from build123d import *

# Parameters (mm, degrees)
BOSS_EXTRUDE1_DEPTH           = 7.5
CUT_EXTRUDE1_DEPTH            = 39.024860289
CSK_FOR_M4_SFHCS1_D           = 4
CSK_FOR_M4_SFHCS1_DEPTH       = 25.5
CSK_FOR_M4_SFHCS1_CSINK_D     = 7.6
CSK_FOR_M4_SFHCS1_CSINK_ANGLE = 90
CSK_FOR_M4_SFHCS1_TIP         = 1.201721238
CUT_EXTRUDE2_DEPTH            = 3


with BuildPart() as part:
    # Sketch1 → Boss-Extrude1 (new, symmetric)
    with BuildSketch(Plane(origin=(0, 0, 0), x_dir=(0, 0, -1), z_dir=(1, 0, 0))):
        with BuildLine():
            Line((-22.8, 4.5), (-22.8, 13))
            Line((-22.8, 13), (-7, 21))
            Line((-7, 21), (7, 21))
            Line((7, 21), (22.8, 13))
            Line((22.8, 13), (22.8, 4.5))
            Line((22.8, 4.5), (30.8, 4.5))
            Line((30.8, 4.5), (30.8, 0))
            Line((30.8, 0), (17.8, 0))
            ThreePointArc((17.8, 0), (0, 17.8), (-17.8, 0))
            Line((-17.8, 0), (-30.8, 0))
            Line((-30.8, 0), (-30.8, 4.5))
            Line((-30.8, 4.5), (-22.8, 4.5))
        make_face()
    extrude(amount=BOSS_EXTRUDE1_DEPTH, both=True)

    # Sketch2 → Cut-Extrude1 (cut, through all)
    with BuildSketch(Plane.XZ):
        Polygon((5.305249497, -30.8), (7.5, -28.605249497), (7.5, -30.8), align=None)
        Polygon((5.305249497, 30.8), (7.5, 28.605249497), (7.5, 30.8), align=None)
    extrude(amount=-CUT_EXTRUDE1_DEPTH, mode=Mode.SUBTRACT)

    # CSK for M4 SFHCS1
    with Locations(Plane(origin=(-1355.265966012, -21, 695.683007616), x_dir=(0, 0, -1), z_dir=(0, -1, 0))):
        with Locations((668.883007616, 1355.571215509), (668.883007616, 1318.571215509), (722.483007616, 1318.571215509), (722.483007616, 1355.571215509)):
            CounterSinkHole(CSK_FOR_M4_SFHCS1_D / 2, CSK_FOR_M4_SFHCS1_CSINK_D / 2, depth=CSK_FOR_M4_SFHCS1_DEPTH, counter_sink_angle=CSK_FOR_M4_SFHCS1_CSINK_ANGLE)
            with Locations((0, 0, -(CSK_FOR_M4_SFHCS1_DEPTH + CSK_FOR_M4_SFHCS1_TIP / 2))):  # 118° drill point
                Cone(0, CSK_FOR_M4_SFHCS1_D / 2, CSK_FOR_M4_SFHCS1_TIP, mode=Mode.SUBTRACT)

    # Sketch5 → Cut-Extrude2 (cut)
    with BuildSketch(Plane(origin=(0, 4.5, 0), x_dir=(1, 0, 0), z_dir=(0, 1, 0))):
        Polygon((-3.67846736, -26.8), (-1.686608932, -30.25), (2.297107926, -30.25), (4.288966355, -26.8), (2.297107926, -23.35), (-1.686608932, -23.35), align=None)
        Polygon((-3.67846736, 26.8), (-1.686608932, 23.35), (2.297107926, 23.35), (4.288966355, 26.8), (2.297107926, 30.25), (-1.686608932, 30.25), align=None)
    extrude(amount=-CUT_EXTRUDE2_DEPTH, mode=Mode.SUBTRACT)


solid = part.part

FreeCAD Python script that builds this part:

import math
import FreeCAD as App
import Part
import Sketcher

V = App.Vector
Q = App.Units.Quantity

doc = App.newDocument("Part")
body = doc.addObject("PartDesign::Body", "Body")

# Sketch on YZ plane
sketch1 = body.newObject("Sketcher::SketchObject", "Sketch")
sketch1.AttachmentSupport = (doc.getObject("YZ_Plane"), [""])
sketch1.MapMode = "FlatFace"
sketch1.addGeometry([
    Part.LineSegment(V(13, 22.8, 0), V(4.5, 22.8, 0)),  # 0
    Part.LineSegment(V(4.5, 22.8, 0), V(4.5, 30.8, 0)),  # 1
    Part.LineSegment(V(4.5, 30.8, 0), V(0, 30.8, 0)),  # 2
    Part.LineSegment(V(0, 30.8, 0), V(0, 17.8, 0)),  # 3
    Part.ArcOfCircle(Part.Circle(V(0, 0, 0), V(0, 0, 1), 17.8), math.radians(-90), math.radians(90)),  # 4
    Part.LineSegment(V(0, -17.8, 0), V(0, -30.8, 0)),  # 5
    Part.LineSegment(V(0, -30.8, 0), V(4.5, -30.8, 0)),  # 6
    Part.LineSegment(V(4.5, -30.8, 0), V(4.5, -22.8, 0)),  # 7
    Part.LineSegment(V(4.5, -22.8, 0), V(13, -22.8, 0)),  # 8
    Part.LineSegment(V(13, -22.8, 0), V(21, -7, 0)),  # 9
    Part.LineSegment(V(21, -7, 0), V(21, 7, 0)),  # 10
    Part.LineSegment(V(21, 7, 0), V(13, 22.8, 0)),  # 11
], False)
sketch1.addConstraint([
    Sketcher.Constraint("Coincident", 0, 2, 1, 1),
    Sketcher.Constraint("Coincident", 1, 2, 2, 1),
    Sketcher.Constraint("Coincident", 2, 2, 3, 1),
    Sketcher.Constraint("Coincident", 3, 2, 4, 2),
    Sketcher.Constraint("Coincident", 4, 1, 5, 1),
    Sketcher.Constraint("Coincident", 5, 2, 6, 1),
    Sketcher.Constraint("Coincident", 6, 2, 7, 1),
    Sketcher.Constraint("Coincident", 7, 2, 8, 1),
    Sketcher.Constraint("Coincident", 8, 2, 9, 1),
    Sketcher.Constraint("Coincident", 9, 2, 10, 1),
    Sketcher.Constraint("Coincident", 10, 2, 11, 1),
    Sketcher.Constraint("Coincident", 11, 2, 0, 1),
    Sketcher.Constraint("Horizontal", 0),
    Sketcher.Constraint("Vertical", 1),
    Sketcher.Constraint("Horizontal", 2),
    Sketcher.Constraint("Vertical", 3),
    Sketcher.Constraint("Vertical", 5),
    Sketcher.Constraint("Horizontal", 6),
    Sketcher.Constraint("Vertical", 7),
    Sketcher.Constraint("Horizontal", 8),
    Sketcher.Constraint("Vertical", 10),
    Sketcher.Constraint("Coincident", 4, 3, -1, 1),
    Sketcher.Constraint("Symmetric", 2, 2, 5, 2, -1, 1),
    Sketcher.Constraint("Symmetric", 0, 2, 7, 2, -1),
    Sketcher.Constraint("PointOnObject", 2, 2, -2),
    Sketcher.Constraint("Vertical", 8, 2, 11, 2),
    Sketcher.Constraint("Equal", 9, 11),
    Sketcher.Constraint("Radius", 4, Q("17.8 mm")),
    Sketcher.Constraint("DistanceY", 1, 1, 1, 2, Q("8 mm")),
    Sketcher.Constraint("DistanceY", 3, 2, 3, 1, Q("13 mm")),
    Sketcher.Constraint("DistanceY", 10, 1, 10, 2, Q("14 mm")),
    Sketcher.Constraint("DistanceX", 0, 2, 0, 1, Q("8.5 mm")),
    Sketcher.Constraint("DistanceX", 2, 2, 2, 1, Q("4.5 mm")),
    Sketcher.Constraint("DistanceX", -1, 1, 9, 2, Q("21 mm")),
])
pad1 = body.newObject("PartDesign::Pad", "Pad")
pad1.Profile = sketch1
pad1.Length = 15
pad1.Midplane = True

# Sketch on XZ plane
sketch2 = body.newObject("Sketcher::SketchObject", "Sketch001")
sketch2.AttachmentSupport = (doc.getObject("XZ_Plane"), [""])
sketch2.MapMode = "FlatFace"
sketch2.addGeometry([
    Part.LineSegment(V(7.5, -28.6, 0), V(5.3, -30.8, 0)),  # 0
    Part.LineSegment(V(5.3, -30.8, 0), V(7.5, -30.8, 0)),  # 1
    Part.LineSegment(V(7.5, -30.8, 0), V(7.5, -28.6, 0)),  # 2
    Part.LineSegment(V(5.3, 30.8, 0), V(7.5, 28.6, 0)),  # 3
    Part.LineSegment(V(7.5, 28.6, 0), V(7.5, 30.8, 0)),  # 4
    Part.LineSegment(V(7.5, 30.8, 0), V(5.3, 30.8, 0)),  # 5
], False)
sketch2.addConstraint([
    Sketcher.Constraint("Coincident", 0, 2, 1, 1),
    Sketcher.Constraint("Coincident", 1, 2, 2, 1),
    Sketcher.Constraint("Coincident", 2, 2, 0, 1),
    Sketcher.Constraint("Coincident", 3, 2, 4, 1),
    Sketcher.Constraint("Coincident", 4, 2, 5, 1),
    Sketcher.Constraint("Coincident", 5, 2, 3, 1),
    Sketcher.Constraint("Horizontal", 1),
    Sketcher.Constraint("Vertical", 2),
    Sketcher.Constraint("Vertical", 4),
    Sketcher.Constraint("Horizontal", 5),
    Sketcher.Constraint("Symmetric", 2, 2, 3, 2, -1),
    Sketcher.Constraint("Symmetric", 0, 2, 5, 2, -1),
    Sketcher.Constraint("Perpendicular", 0, 3),
    Sketcher.Constraint("DistanceY", 0, 2, -1, 1, Q("30.8 mm")),
    Sketcher.Constraint("DistanceX", -1, 1, 1, 2, Q("7.5 mm")),
    Sketcher.Constraint("DistanceX", 1, 1, 1, 2, Q("2.194751 mm")),
])
pocket1 = body.newObject("PartDesign::Pocket", "Pocket")
pocket1.Profile = sketch2
pocket1.Type = "ThroughAll"

# Sketch on XZ plane
sketch3 = body.newObject("Sketcher::SketchObject", "Sketch002")
sketch3.AttachmentSupport = (doc.getObject("XZ_Plane"), [""])
sketch3.MapMode = "FlatFace"
sketch3.AttachmentOffset = App.Placement(V(0, 0, 21), App.Rotation())
sketch3.addGeometry([
    Part.Circle(V(0.3, 26.8, 0), V(0, 0, 1), 2),
    Part.Circle(V(-36.7, 26.8, 0), V(0, 0, 1), 2),
    Part.Circle(V(-36.7, -26.8, 0), V(0, 0, 1), 2),
    Part.Circle(V(0.3, -26.8, 0), V(0, 0, 1), 2),
], False)
sketch3.addConstraint([
    Sketcher.Constraint("Equal", 0, 1),
    Sketcher.Constraint("Equal", 1, 2),
    Sketcher.Constraint("Equal", 2, 3),
    Sketcher.Constraint("Symmetric", 1, 3, 2, 3, -1),
    Sketcher.Constraint("Symmetric", 0, 3, 3, 3, -1),
    Sketcher.Constraint("Horizontal", 0, 3, 1, 3),
    Sketcher.Constraint("Diameter", 0, Q("4 mm")),
    Sketcher.Constraint("DistanceX", 1, 3, 0, 3, Q("37 mm")),
    Sketcher.Constraint("DistanceY", -1, 1, 0, 3, Q("26.8 mm")),
    Sketcher.Constraint("DistanceX", -1, 1, 0, 3, Q("0.305249 mm")),
])
doc.recompute()
hole = body.newObject("PartDesign::Hole", "Hole")
hole.Profile = sketch3
hole.ThreadType = "None"
hole.Diameter = 4
hole.DepthType = "Dimension"
hole.Depth = 25.5
hole.DrillPoint = "Angled"
hole.DrillPointAngle = 118
hole.HoleCutType = "Countersink"
hole.HoleCutDiameter = 7.6
hole.HoleCutCountersinkAngle = 90

# Sketch on XZ plane
sketch4 = body.newObject("Sketcher::SketchObject", "Sketch003")
sketch4.AttachmentSupport = (doc.getObject("XZ_Plane"), [""])
sketch4.MapMode = "FlatFace"
sketch4.AttachmentOffset = App.Placement(V(0, 0, -4.5), App.Rotation())
sketch4.addGeometry([
    Part.LineSegment(V(-3.7, 26.8, 0), V(-1.7, 30.2, 0)),  # 0
    Part.LineSegment(V(-1.7, 30.2, 0), V(2.3, 30.2, 0)),  # 1
    Part.LineSegment(V(2.3, 30.2, 0), V(4.3, 26.8, 0)),  # 2
    Part.LineSegment(V(4.3, 26.8, 0), V(2.3, 23.4, 0)),  # 3
    Part.LineSegment(V(2.3, 23.4, 0), V(-1.7, 23.4, 0)),  # 4
    Part.LineSegment(V(-1.7, 23.4, 0), V(-3.7, 26.8, 0)),  # 5
    Part.LineSegment(V(-3.7, -26.8, 0), V(-1.7, -23.4, 0)),  # 6
    Part.LineSegment(V(-1.7, -23.4, 0), V(2.3, -23.4, 0)),  # 7
    Part.LineSegment(V(2.3, -23.4, 0), V(4.3, -26.8, 0)),  # 8
    Part.LineSegment(V(4.3, -26.8, 0), V(2.3, -30.2, 0)),  # 9
    Part.LineSegment(V(2.3, -30.2, 0), V(-1.7, -30.2, 0)),  # 10
    Part.LineSegment(V(-1.7, -30.2, 0), V(-3.7, -26.8, 0)),  # 11
], False)
sketch4.addConstraint([
    Sketcher.Constraint("Coincident", 0, 2, 1, 1),
    Sketcher.Constraint("Coincident", 1, 2, 2, 1),
    Sketcher.Constraint("Coincident", 2, 2, 3, 1),
    Sketcher.Constraint("Coincident", 3, 2, 4, 1),
    Sketcher.Constraint("Coincident", 4, 2, 5, 1),
    Sketcher.Constraint("Coincident", 5, 2, 0, 1),
    Sketcher.Constraint("Coincident", 6, 2, 7, 1),
    Sketcher.Constraint("Coincident", 7, 2, 8, 1),
    Sketcher.Constraint("Coincident", 8, 2, 9, 1),
    Sketcher.Constraint("Coincident", 9, 2, 10, 1),
    Sketcher.Constraint("Coincident", 10, 2, 11, 1),
    Sketcher.Constraint("Coincident", 11, 2, 6, 1),
    Sketcher.Constraint("Horizontal", 1),
    Sketcher.Constraint("Horizontal", 4),
    Sketcher.Constraint("Horizontal", 7),
    Sketcher.Constraint("Horizontal", 10),
    Sketcher.Constraint("Symmetric", 4, 2, 6, 2, -1),
    Sketcher.Constraint("Symmetric", 2, 2, 8, 2, -1),
    Sketcher.Constraint("Symmetric", 1, 2, 9, 2, -1),
    Sketcher.Constraint("Symmetric", 5, 2, 11, 2, -1),
    Sketcher.Constraint("Parallel", 0, 3),
    Sketcher.Constraint("Parallel", 2, 5),
    Sketcher.Constraint("Parallel", 3, 6),
    Sketcher.Constraint("Parallel", 5, 8),
    Sketcher.Constraint("Parallel", 8, 11),
    Sketcher.Constraint("Horizontal", 2, 2, 5, 2),
    Sketcher.Constraint("Vertical", 1, 2, 3, 2),
    Sketcher.Constraint("Angle", 0, Q("60 deg")),
    Sketcher.Constraint("DistanceY", -1, 1, 2, 2, Q("26.8 mm")),
    Sketcher.Constraint("DistanceY", 3, 2, 1, 2, Q("6.9 mm")),
    Sketcher.Constraint("DistanceX", 1, 1, 1, 2, Q("3.983717 mm")),
    Sketcher.Constraint("DistanceX", 0, 2, -1, 1, Q("1.686609 mm")),
])
pocket2 = body.newObject("PartDesign::Pocket", "Pocket001")
pocket2.Profile = sketch4
pocket2.Length = 3
pocket2.Reversed = True

doc.recompute()
